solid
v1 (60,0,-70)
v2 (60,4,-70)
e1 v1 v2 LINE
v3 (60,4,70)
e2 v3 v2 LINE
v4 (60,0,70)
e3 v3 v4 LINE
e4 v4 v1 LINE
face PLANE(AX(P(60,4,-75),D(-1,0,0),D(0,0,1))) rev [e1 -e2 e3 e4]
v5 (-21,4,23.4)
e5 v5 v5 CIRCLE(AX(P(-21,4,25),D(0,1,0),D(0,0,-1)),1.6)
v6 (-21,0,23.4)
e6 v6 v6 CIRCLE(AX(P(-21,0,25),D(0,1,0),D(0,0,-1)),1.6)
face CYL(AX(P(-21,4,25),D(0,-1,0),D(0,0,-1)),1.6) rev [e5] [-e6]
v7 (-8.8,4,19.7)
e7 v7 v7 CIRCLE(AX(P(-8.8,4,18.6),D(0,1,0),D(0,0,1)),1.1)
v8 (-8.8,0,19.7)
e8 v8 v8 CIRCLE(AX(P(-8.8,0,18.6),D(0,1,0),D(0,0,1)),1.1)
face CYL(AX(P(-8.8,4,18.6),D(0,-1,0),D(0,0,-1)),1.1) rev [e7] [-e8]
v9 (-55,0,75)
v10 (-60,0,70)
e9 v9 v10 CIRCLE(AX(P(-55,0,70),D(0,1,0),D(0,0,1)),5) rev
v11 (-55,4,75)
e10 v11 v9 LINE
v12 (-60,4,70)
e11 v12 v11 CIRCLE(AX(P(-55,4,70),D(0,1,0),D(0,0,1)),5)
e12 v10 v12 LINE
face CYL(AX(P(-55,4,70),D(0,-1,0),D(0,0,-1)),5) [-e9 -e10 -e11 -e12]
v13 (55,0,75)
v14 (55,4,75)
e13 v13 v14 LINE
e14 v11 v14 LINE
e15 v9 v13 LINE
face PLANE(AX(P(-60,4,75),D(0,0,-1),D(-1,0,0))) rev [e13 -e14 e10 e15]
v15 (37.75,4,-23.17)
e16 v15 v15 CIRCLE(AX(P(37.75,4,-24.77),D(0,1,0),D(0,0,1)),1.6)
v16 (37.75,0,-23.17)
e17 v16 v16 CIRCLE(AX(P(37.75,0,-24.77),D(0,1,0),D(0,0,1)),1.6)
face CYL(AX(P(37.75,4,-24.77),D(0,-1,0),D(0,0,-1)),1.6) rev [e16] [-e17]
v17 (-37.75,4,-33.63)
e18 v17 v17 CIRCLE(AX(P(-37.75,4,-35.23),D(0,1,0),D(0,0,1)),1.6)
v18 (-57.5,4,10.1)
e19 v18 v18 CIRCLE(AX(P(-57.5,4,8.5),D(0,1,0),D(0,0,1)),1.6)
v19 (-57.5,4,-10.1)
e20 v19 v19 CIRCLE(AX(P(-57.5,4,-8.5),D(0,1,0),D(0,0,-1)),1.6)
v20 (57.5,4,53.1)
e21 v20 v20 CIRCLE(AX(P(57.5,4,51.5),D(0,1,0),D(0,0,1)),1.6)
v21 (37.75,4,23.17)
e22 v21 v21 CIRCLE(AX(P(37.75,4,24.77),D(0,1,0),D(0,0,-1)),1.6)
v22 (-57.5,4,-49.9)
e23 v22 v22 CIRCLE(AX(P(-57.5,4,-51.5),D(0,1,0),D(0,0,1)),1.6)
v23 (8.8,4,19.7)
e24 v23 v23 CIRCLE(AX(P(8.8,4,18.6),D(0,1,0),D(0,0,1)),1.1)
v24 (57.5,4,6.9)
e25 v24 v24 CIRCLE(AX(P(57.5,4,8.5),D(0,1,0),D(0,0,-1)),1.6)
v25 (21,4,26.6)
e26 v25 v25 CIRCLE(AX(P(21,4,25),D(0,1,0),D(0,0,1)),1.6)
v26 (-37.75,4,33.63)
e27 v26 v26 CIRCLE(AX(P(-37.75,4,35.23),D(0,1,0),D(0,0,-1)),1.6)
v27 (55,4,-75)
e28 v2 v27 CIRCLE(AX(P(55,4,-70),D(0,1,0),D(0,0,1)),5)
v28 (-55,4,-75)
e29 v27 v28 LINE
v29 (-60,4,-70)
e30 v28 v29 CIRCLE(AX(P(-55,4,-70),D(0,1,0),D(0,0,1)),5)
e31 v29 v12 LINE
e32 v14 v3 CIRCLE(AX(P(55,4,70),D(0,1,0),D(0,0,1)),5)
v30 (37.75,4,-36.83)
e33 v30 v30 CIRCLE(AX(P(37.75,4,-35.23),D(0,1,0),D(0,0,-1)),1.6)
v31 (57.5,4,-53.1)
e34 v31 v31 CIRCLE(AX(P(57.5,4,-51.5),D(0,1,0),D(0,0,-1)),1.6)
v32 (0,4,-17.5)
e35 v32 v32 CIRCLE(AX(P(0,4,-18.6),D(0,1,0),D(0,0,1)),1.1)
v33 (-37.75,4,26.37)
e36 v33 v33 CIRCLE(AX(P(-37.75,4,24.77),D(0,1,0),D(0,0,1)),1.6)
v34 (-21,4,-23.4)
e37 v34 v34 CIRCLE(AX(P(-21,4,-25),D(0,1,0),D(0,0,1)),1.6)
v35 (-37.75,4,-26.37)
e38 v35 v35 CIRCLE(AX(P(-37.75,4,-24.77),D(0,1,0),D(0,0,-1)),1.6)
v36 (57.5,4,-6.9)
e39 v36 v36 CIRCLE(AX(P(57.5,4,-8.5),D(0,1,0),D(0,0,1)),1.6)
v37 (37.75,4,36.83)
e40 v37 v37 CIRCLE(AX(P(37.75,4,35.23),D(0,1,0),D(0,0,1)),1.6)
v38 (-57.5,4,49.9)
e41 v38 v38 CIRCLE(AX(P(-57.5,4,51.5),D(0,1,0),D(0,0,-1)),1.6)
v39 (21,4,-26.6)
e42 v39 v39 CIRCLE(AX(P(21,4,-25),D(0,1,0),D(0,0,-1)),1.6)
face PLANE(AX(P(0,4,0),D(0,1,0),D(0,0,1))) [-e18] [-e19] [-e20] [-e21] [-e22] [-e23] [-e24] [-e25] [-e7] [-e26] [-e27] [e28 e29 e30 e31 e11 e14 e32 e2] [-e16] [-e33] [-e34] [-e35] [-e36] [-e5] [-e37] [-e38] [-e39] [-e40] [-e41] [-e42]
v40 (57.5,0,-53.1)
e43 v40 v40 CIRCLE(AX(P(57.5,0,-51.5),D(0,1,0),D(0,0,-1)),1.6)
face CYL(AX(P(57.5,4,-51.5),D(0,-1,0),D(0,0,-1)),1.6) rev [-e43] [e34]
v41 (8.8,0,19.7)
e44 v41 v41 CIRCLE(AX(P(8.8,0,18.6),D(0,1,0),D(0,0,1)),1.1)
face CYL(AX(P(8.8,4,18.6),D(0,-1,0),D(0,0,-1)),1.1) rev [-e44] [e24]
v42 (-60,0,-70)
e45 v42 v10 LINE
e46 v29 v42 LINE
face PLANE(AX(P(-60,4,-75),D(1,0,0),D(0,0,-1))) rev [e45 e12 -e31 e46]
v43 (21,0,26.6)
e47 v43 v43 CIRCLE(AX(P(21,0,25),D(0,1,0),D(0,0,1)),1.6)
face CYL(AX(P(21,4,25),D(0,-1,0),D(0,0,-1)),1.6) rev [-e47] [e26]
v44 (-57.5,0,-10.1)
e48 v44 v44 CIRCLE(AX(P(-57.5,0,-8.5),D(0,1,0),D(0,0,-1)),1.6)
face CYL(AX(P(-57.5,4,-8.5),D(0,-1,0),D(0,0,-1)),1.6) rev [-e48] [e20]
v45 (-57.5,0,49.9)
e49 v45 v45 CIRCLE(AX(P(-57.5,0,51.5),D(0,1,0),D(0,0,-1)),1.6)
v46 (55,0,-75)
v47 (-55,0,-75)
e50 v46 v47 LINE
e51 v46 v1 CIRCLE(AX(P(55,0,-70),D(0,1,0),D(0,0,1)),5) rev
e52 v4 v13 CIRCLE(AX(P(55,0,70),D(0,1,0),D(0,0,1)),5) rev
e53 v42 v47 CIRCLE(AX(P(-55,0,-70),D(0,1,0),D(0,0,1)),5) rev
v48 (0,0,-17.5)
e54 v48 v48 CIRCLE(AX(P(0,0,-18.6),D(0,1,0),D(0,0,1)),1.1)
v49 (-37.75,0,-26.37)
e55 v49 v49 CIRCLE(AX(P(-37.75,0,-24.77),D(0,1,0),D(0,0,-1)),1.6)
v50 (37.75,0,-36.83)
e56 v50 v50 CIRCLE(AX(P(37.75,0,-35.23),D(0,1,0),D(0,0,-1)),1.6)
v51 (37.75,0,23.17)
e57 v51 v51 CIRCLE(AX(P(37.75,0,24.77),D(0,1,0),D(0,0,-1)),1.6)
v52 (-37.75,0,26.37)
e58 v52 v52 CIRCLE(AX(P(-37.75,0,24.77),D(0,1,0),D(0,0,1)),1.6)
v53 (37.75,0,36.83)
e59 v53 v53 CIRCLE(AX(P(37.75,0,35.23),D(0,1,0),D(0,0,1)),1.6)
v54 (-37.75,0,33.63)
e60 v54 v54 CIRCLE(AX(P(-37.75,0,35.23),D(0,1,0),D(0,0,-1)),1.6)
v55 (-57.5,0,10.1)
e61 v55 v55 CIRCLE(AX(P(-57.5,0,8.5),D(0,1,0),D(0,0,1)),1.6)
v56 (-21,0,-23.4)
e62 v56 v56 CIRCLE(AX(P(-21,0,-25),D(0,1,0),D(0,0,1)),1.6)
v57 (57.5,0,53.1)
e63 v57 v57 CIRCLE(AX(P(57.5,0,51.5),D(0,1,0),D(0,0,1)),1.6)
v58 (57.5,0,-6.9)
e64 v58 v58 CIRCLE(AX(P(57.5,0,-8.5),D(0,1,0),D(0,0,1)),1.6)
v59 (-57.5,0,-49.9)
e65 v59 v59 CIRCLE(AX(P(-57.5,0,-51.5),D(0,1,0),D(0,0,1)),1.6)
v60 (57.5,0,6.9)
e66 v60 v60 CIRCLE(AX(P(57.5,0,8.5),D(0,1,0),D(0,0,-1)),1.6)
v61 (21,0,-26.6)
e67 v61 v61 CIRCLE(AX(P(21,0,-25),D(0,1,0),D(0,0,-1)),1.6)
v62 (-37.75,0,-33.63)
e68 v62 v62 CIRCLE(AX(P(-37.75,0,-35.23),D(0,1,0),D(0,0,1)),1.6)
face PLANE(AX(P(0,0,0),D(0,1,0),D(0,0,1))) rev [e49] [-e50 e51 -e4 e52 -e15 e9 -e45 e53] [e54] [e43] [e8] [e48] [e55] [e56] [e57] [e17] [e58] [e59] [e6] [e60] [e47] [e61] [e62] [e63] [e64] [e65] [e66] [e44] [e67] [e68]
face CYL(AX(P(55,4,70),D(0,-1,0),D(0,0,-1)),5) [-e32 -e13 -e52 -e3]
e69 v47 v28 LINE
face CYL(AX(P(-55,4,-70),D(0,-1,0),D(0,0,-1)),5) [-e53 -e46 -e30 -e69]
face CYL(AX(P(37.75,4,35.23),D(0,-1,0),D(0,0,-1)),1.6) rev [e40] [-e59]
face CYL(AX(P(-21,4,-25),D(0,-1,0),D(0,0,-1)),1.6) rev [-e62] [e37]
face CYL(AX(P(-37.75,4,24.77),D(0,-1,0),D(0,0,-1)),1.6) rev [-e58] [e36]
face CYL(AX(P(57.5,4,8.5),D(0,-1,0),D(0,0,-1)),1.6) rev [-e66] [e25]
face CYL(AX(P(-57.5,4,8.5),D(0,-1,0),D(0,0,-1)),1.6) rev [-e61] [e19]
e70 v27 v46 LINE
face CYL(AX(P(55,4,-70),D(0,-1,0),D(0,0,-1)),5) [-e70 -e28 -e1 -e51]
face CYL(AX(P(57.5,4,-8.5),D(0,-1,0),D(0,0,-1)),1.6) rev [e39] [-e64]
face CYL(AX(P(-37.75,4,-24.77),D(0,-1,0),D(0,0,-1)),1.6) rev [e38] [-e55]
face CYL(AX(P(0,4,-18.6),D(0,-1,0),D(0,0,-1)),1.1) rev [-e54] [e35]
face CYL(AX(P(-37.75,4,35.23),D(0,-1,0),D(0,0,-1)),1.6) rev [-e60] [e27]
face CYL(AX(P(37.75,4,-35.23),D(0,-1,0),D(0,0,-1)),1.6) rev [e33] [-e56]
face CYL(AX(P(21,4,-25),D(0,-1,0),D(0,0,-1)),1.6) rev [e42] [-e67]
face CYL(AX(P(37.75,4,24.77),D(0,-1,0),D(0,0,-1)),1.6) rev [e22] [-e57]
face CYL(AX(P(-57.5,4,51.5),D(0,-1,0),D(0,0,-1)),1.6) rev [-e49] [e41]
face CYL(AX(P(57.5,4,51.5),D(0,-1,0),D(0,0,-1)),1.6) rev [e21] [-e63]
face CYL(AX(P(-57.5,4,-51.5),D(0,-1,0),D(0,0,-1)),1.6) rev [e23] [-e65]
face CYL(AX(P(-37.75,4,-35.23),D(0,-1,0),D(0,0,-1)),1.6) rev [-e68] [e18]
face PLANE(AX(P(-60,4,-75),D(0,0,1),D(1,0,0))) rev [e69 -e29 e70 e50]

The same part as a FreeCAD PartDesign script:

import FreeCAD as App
import Part
import Sketcher

V = App.Vector


def edges_at(feature, points):
    """Names of the edges that pass closest to the given points."""
    edges = feature.Shape.Edges
    near = lambda p: min(range(len(edges)), key=lambda i: edges[i].distToShape(Part.Vertex(*p))[0])
    return sorted({f"Edge{near(p) + 1}" for p in points})

doc = App.newDocument("Part")
body = doc.addObject("PartDesign::Body", "Body")

# Sketch on XZ plane
sketch1 = body.newObject("Sketcher::SketchObject", "Sketch")
sketch1.AttachmentSupport = (doc.getObject("XZ_Plane"), [""])
sketch1.MapMode = "FlatFace"
sketch1.addGeometry(Part.LineSegment(V(-60, -75, 0), V(-60, 75, 0)), False)
sketch1.addGeometry(Part.LineSegment(V(-60, 75, 0), V(60, 75, 0)), False)
sketch1.addGeometry(Part.LineSegment(V(60, 75, 0), V(60, -75, 0)), False)
sketch1.addGeometry(Part.LineSegment(V(60, -75, 0), V(-60, -75, 0)), False)
sketch1.addGeometry(Part.Circle(V(-57.5, 51.5, 0), V(0, 0, 1), 1.6), False)
sketch1.addGeometry(Part.Circle(V(-37.75, 35.23, 0), V(0, 0, 1), 1.6), False)
sketch1.addGeometry(Part.Circle(V(-37.75, 24.77, 0), V(0, 0, 1), 1.6), False)
sketch1.addGeometry(Part.Circle(V(-57.5, 8.5, 0), V(0, 0, 1), 1.6), False)
sketch1.addGeometry(Part.Circle(V(-21, 25, 0), V(0, 0, 1), 1.6), False)
sketch1.addGeometry(Part.Circle(V(-8.8, 18.6, 0), V(0, 0, 1), 1.1), False)
sketch1.addGeometry(Part.Circle(V(57.5, 51.5, 0), V(0, 0, 1), 1.6), False)
sketch1.addGeometry(Part.Circle(V(37.75, 35.23, 0), V(0, 0, 1), 1.6), False)
sketch1.addGeometry(Part.Circle(V(8.8, 18.6, 0), V(0, 0, 1), 1.1), False)
sketch1.addGeometry(Part.Circle(V(21, 25, 0), V(0, 0, 1), 1.6), False)
sketch1.addGeometry(Part.Circle(V(37.75, 24.77, 0), V(0, 0, 1), 1.6), False)
sketch1.addGeometry(Part.Circle(V(57.5, 8.5, 0), V(0, 0, 1), 1.6), False)
sketch1.addGeometry(Part.Circle(V(-57.5, -8.5, 0), V(0, 0, 1), 1.6), False)
sketch1.addGeometry(Part.Circle(V(-37.75, -24.77, 0), V(0, 0, 1), 1.6), False)
sketch1.addGeometry(Part.Circle(V(-21, -25, 0), V(0, 0, 1), 1.6), False)
sketch1.addGeometry(Part.Circle(V(-37.75, -35.23, 0), V(0, 0, 1), 1.6), False)
sketch1.addGeometry(Part.Circle(V(-57.5, -51.5, 0), V(0, 0, 1), 1.6), False)
sketch1.addGeometry(Part.Circle(V(0, -18.6, 0), V(0, 0, 1), 1.1), False)
sketch1.addGeometry(Part.Circle(V(21, -25, 0), V(0, 0, 1), 1.6), False)
sketch1.addGeometry(Part.Circle(V(57.5, -8.5, 0), V(0, 0, 1), 1.6), False)
sketch1.addGeometry(Part.Circle(V(37.75, -24.77, 0), V(0, 0, 1), 1.6), False)
sketch1.addGeometry(Part.Circle(V(37.75, -35.23, 0), V(0, 0, 1), 1.6), False)
sketch1.addGeometry(Part.Circle(V(57.5, -51.5, 0), V(0, 0, 1), 1.6), False)
sketch1.addConstraint(Sketcher.Constraint("Coincident", 0, 2, 1, 1))
sketch1.addConstraint(Sketcher.Constraint("Coincident", 1, 2, 2, 1))
sketch1.addConstraint(Sketcher.Constraint("Coincident", 2, 2, 3, 1))
sketch1.addConstraint(Sketcher.Constraint("Coincident", 3, 2, 0, 1))
sketch1.addConstraint(Sketcher.Constraint("Vertical", 0))
sketch1.addConstraint(Sketcher.Constraint("Horizontal", 1))
sketch1.addConstraint(Sketcher.Constraint("Vertical", 2))
sketch1.addConstraint(Sketcher.Constraint("Horizontal", 3))
sketch1.addConstraint(Sketcher.Constraint("Equal", 4, 5))
sketch1.addConstraint(Sketcher.Constraint("Equal", 5, 6))
sketch1.addConstraint(Sketcher.Constraint("Equal", 6, 7))
sketch1.addConstraint(Sketcher.Constraint("Equal", 7, 8))
sketch1.addConstraint(Sketcher.Constraint("Equal", 8, 10))
sketch1.addConstraint(Sketcher.Constraint("Equal", 10, 11))
sketch1.addConstraint(Sketcher.Constraint("Equal", 9, 12))
sketch1.addConstraint(Sketcher.Constraint("Equal", 11, 13))
sketch1.addConstraint(Sketcher.Constraint("Equal", 13, 14))
sketch1.addConstraint(Sketcher.Constraint("Equal", 14, 15))
sketch1.addConstraint(Sketcher.Constraint("Equal", 15, 16))
sketch1.addConstraint(Sketcher.Constraint("Equal", 16, 17))
sketch1.addConstraint(Sketcher.Constraint("Equal", 17, 18))
sketch1.addConstraint(Sketcher.Constraint("Equal", 18, 19))
sketch1.addConstraint(Sketcher.Constraint("Equal", 19, 20))
sketch1.addConstraint(Sketcher.Constraint("Equal", 12, 21))
sketch1.addConstraint(Sketcher.Constraint("Equal", 20, 22))
sketch1.addConstraint(Sketcher.Constraint("Equal", 22, 23))
sketch1.addConstraint(Sketcher.Constraint("Equal", 23, 24))
sketch1.addConstraint(Sketcher.Constraint("Equal", 24, 25))
sketch1.addConstraint(Sketcher.Constraint("Equal", 25, 26))
sketch1.addConstraint(Sketcher.Constraint("Symmetric", 15, 3, 16, 3, -1, 1))
sketch1.addConstraint(Sketcher.Constraint("Symmetric", 14, 3, 17, 3, -1, 1))
sketch1.addConstraint(Sketcher.Constraint("Symmetric", 13, 3, 18, 3, -1, 1))
sketch1.addConstraint(Sketcher.Constraint("Symmetric", 11, 3, 19, 3, -1, 1))
sketch1.addConstraint(Sketcher.Constraint("Symmetric", 10, 3, 20, 3, -1, 1))
sketch1.addConstraint(Sketcher.Constraint("Symmetric", 8, 3, 22, 3, -1, 1))
sketch1.addConstraint(Sketcher.Constraint("Symmetric", 7, 3, 23, 3, -1, 1))
sketch1.addConstraint(Sketcher.Constraint("Symmetric", 6, 3, 24, 3, -1, 1))
sketch1.addConstraint(Sketcher.Constraint("Symmetric", 5, 3, 25, 3, -1, 1))
sketch1.addConstraint(Sketcher.Constraint("Symmetric", 4, 3, 26, 3, -1, 1))
sketch1.addConstraint(Sketcher.Constraint("Symmetric", 0, 2, 2, 2, -1, 1))
sketch1.addConstraint(Sketcher.Constraint("Symmetric", 4, 3, 10, 3, -2))
sketch1.addConstraint(Sketcher.Constraint("Symmetric", 5, 3, 11, 3, -2))
sketch1.addConstraint(Sketcher.Constraint("Symmetric", 9, 3, 12, 3, -2))
sketch1.addConstraint(Sketcher.Constraint("Symmetric", 8, 3, 13, 3, -2))
sketch1.addConstraint(Sketcher.Constraint("Symmetric", 6, 3, 14, 3, -2))
sketch1.addConstraint(Sketcher.Constraint("Symmetric", 7, 3, 15, 3, -2))
sketch1.addConstraint(Sketcher.Constraint("PointOnObject", 21, 3, -2))
sketch1.addConstraint(Sketcher.Constraint("Vertical", 5, 3, 6, 3))
sketch1.addConstraint(Sketcher.Constraint("Vertical", 4, 3, 7, 3))
sketch1.addConstraint(Sketcher.Constraint("Diameter", 4, 3.2))
sketch1.addConstraint(Sketcher.Constraint("Diameter", 9, 2.2))
sketch1.addConstraint(Sketcher.Constraint("DistanceX", 1, 1, 1, 2, 120.0))
sketch1.addConstraint(Sketcher.Constraint("DistanceY", 0, 1, 0, 2, 150.0))
sketch1.addConstraint(Sketcher.Constraint("DistanceX", 8, 3, -1, 1, 21.0))
sketch1.addConstraint(Sketcher.Constraint("DistanceY", -1, 1, 8, 3, 25.0))
sketch1.addConstraint(Sketcher.Constraint("DistanceY", 7, 3, 4, 3, 43.0))
sketch1.addConstraint(Sketcher.Constraint("DistanceX", 4, 3, 10, 3, 115.0))
sketch1.addConstraint(Sketcher.Constraint("DistanceY", 16, 3, 7, 3, 17.0))
sketch1.addConstraint(Sketcher.Constraint("DistanceY", 19, 3, 6, 3, 60.0))
sketch1.addConstraint(Sketcher.Constraint("DistanceX", 9, 3, -1, 1, 8.8))
sketch1.addConstraint(Sketcher.Constraint("DistanceY", -1, 1, 9, 3, 18.6))
sketch1.addConstraint(Sketcher.Constraint("DistanceY", 21, 3, -1, 1, 18.6))
sketch1.addConstraint(Sketcher.Constraint("DistanceX", 5, 3, 11, 3, 75.5))
sketch1.addConstraint(Sketcher.Constraint("DistanceY", -1, 1, 5, 3, 35.23))
pad1 = body.newObject("PartDesign::Pad", "Pad")
pad1.Profile = sketch1
pad1.Length = 4
pad1.Reversed = True
doc.recompute()

fillet = body.newObject("PartDesign::Fillet", "Fillet")
fillet.Base = (pad1, edges_at(pad1, [
    (60, 2, 75),
    (-60, 2, 75),
    (-60, 2, -75),
    (60, 2, -75),
]))
fillet.Radius = 5

doc.recompute()
